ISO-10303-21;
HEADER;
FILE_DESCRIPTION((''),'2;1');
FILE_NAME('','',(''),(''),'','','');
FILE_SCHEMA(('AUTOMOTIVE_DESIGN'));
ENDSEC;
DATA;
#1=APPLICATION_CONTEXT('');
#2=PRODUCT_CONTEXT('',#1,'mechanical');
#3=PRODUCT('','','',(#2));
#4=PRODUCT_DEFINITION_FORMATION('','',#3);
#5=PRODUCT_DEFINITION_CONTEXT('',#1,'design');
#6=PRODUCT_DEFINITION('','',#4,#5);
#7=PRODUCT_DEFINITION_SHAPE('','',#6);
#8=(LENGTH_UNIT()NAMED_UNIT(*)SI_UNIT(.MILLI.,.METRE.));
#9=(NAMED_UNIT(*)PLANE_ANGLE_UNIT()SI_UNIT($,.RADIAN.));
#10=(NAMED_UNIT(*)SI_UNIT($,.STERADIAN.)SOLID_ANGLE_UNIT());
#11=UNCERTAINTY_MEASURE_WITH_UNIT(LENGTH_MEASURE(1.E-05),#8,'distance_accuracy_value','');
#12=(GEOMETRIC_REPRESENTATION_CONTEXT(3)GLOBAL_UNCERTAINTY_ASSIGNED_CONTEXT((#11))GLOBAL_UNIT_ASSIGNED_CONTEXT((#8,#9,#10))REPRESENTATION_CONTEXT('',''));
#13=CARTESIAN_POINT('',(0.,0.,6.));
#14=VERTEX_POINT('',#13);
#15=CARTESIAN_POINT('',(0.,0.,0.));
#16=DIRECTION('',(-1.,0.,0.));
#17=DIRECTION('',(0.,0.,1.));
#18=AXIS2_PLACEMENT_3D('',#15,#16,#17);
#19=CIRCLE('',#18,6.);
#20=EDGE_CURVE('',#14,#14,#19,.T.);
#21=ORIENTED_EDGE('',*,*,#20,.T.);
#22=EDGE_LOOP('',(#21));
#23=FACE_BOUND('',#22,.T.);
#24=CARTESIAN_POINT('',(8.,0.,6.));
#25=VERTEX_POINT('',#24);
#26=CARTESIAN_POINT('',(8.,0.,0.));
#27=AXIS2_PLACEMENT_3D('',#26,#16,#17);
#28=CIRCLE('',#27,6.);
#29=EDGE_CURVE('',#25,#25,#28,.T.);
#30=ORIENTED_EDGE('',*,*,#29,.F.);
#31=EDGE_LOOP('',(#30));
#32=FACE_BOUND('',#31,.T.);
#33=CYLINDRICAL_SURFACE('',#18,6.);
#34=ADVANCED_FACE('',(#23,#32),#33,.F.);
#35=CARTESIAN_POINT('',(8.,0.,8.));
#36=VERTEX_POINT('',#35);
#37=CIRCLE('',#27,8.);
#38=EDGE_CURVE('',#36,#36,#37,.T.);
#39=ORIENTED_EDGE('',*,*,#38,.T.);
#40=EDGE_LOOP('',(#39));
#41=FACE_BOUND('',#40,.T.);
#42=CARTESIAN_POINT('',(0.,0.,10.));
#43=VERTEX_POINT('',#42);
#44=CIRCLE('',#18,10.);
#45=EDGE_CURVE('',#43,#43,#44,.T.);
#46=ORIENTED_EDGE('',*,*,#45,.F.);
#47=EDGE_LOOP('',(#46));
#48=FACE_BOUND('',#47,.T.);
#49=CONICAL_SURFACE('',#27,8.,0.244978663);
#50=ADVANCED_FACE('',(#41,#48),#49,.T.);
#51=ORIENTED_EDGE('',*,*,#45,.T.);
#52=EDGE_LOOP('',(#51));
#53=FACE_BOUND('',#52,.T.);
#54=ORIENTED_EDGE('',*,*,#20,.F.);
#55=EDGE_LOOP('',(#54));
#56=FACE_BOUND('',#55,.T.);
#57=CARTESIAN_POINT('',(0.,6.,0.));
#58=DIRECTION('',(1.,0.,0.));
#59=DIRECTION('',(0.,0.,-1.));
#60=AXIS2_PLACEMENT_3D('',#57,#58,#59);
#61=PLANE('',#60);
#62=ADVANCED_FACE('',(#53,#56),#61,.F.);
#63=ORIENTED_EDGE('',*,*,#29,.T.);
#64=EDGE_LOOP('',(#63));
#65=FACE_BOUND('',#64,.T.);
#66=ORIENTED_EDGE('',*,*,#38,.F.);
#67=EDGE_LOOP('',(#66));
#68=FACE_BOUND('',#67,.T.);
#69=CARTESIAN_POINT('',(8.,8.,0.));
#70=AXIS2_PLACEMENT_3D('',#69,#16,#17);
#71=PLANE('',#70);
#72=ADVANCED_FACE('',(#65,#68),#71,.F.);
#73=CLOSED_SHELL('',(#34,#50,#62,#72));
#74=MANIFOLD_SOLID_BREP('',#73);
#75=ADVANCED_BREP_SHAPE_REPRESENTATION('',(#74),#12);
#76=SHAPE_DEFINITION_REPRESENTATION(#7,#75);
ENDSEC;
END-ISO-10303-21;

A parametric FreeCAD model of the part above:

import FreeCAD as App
import Part
import Sketcher
from FreeCAD import Vector

doc = App.newDocument("Part")
body = doc.addObject("PartDesign::Body", "Body")

sketch1 = body.newObject("Sketcher::SketchObject", "Sketch")
sketch1.AttachmentSupport = (doc.getObject("XY_Plane"), [""])
sketch1.MapMode = "FlatFace"
sketch1.addGeometry(Part.LineSegment(Vector(0, 10, 0), Vector(0, 6, 0)), False)
sketch1.addGeometry(Part.LineSegment(Vector(0, 6, 0), Vector(8, 6, 0)), False)
sketch1.addGeometry(Part.LineSegment(Vector(8, 6, 0), Vector(8, 8, 0)), False)
sketch1.addGeometry(Part.LineSegment(Vector(8, 8, 0), Vector(0, 10, 0)), False)
sketch1.addConstraint(Sketcher.Constraint("Coincident", 0, 2, 1, 1))
sketch1.addConstraint(Sketcher.Constraint("Coincident", 1, 2, 2, 1))
sketch1.addConstraint(Sketcher.Constraint("Coincident", 2, 2, 3, 1))
sketch1.addConstraint(Sketcher.Constraint("Coincident", 3, 2, 0, 1))
sketch1.addConstraint(Sketcher.Constraint("Vertical", 0))
sketch1.addConstraint(Sketcher.Constraint("Horizontal", 1))
sketch1.addConstraint(Sketcher.Constraint("Vertical", 2))
sketch1.addConstraint(Sketcher.Constraint("PointOnObject", 0, 2, -2))
sketch1.addConstraint(Sketcher.Constraint("DistanceX", 1, 1, 1, 2, 8.0))
sketch1.addConstraint(Sketcher.Constraint("DistanceY", 0, 2, 0, 1, 4.0))
sketch1.addConstraint(Sketcher.Constraint("DistanceY", 2, 1, 2, 2, 2.0))
sketch1.addConstraint(Sketcher.Constraint("DistanceY", -1, 1, 0, 2, 6.0))
revolution = body.newObject("PartDesign::Revolution", "Revolution")
revolution.Profile = sketch1
revolution.ReferenceAxis = (sketch1, ["H_Axis"])
revolution.Angle = 360

doc.recompute()
